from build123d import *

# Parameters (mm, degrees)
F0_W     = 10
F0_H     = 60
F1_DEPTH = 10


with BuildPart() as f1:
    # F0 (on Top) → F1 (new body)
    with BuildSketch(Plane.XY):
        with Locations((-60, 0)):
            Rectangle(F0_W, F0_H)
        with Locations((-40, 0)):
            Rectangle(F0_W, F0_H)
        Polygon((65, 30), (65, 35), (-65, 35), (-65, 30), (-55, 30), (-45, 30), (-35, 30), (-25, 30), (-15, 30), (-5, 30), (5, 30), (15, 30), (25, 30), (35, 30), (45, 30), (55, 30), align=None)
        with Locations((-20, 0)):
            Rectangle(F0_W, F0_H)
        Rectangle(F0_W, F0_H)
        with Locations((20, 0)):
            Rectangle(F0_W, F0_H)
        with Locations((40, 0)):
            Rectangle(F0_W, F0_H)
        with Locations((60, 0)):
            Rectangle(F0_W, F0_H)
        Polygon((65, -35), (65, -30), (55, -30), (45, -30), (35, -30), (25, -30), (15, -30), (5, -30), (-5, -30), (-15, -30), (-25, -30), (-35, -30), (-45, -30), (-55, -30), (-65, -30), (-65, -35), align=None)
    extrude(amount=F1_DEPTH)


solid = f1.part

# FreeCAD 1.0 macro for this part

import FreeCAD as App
import Part
import Sketcher

doc = App.newDocument("Part")
body = doc.addObject("PartDesign::Body", "Body")

# Sketch on XY plane
sketch1 = body.newObject("Sketcher::SketchObject", "Sketch")
sketch1.AttachmentSupport = (doc.getObject("XY_Plane"), [""])
sketch1.MapMode = "FlatFace"
sketch1.addGeometry([
    Part.LineSegment(App.Vector(65, 35, 0), App.Vector(-65, 35, 0)),  # 0
    Part.LineSegment(App.Vector(-65, 35, 0), App.Vector(-65, -35, 0)),  # 1
    Part.LineSegment(App.Vector(-65, -35, 0), App.Vector(65, -35, 0)),  # 2
    Part.LineSegment(App.Vector(65, -35, 0), App.Vector(65, 35, 0)),  # 3
    Part.LineSegment(App.Vector(-55, -30, 0), App.Vector(-55, 30, 0)),  # 4
    Part.LineSegment(App.Vector(-55, 30, 0), App.Vector(-45, 30, 0)),  # 5
    Part.LineSegment(App.Vector(-45, 30, 0), App.Vector(-45, -30, 0)),  # 6
    Part.LineSegment(App.Vector(-45, -30, 0), App.Vector(-55, -30, 0)),  # 7
    Part.LineSegment(App.Vector(-35, -30, 0), App.Vector(-35, 30, 0)),  # 8
    Part.LineSegment(App.Vector(-35, 30, 0), App.Vector(-25, 30, 0)),  # 9
    Part.LineSegment(App.Vector(-25, 30, 0), App.Vector(-25, -30, 0)),  # 10
    Part.LineSegment(App.Vector(-25, -30, 0), App.Vector(-35, -30, 0)),  # 11
    Part.LineSegment(App.Vector(-15, -30, 0), App.Vector(-15, 30, 0)),  # 12
    Part.LineSegment(App.Vector(-15, 30, 0), App.Vector(-5, 30, 0)),  # 13
    Part.LineSegment(App.Vector(-5, 30, 0), App.Vector(-5, -30, 0)),  # 14
    Part.LineSegment(App.Vector(-5, -30, 0), App.Vector(-15, -30, 0)),  # 15
    Part.LineSegment(App.Vector(5, -30, 0), App.Vector(5, 30, 0)),  # 16
    Part.LineSegment(App.Vector(5, 30, 0), App.Vector(15, 30, 0)),  # 17
    Part.LineSegment(App.Vector(15, 30, 0), App.Vector(15, -30, 0)),  # 18
    Part.LineSegment(App.Vector(15, -30, 0), App.Vector(5, -30, 0)),  # 19
    Part.LineSegment(App.Vector(25, -30, 0), App.Vector(25, 30, 0)),  # 20
    Part.LineSegment(App.Vector(25, 30, 0), App.Vector(35, 30, 0)),  # 21
    Part.LineSegment(App.Vector(35, 30, 0), App.Vector(35, -30, 0)),  # 22
    Part.LineSegment(App.Vector(35, -30, 0), App.Vector(25, -30, 0)),  # 23
    Part.LineSegment(App.Vector(45, -30, 0), App.Vector(45, 30, 0)),  # 24
    Part.LineSegment(App.Vector(45, 30, 0), App.Vector(55, 30, 0)),  # 25
    Part.LineSegment(App.Vector(55, 30, 0), App.Vector(55, -30, 0)),  # 26
    Part.LineSegment(App.Vector(55, -30, 0), App.Vector(45, -30, 0)),  # 27
], False)
sketch1.addConstraint([
    Sketcher.Constraint("Coincident", 0, 2, 1, 1),
    Sketcher.Constraint("Coincident", 1, 2, 2, 1),
    Sketcher.Constraint("Coincident", 2, 2, 3, 1),
    Sketcher.Constraint("Coincident", 3, 2, 0, 1),
    Sketcher.Constraint("Coincident", 4, 2, 5, 1),
    Sketcher.Constraint("Coincident", 5, 2, 6, 1),
    Sketcher.Constraint("Coincident", 6, 2, 7, 1),
    Sketcher.Constraint("Coincident", 7, 2, 4, 1),
    Sketcher.Constraint("Coincident", 8, 2, 9, 1),
    Sketcher.Constraint("Coincident", 9, 2, 10, 1),
    Sketcher.Constraint("Coincident", 10, 2, 11, 1),
    Sketcher.Constraint("Coincident", 11, 2, 8, 1),
    Sketcher.Constraint("Coincident", 12, 2, 13, 1),
    Sketcher.Constraint("Coincident", 13, 2, 14, 1),
    Sketcher.Constraint("Coincident", 14, 2, 15, 1),
    Sketcher.Constraint("Coincident", 15, 2, 12, 1),
    Sketcher.Constraint("Coincident", 16, 2, 17, 1),
    Sketcher.Constraint("Coincident", 17, 2, 18, 1),
    Sketcher.Constraint("Coincident", 18, 2, 19, 1),
    Sketcher.Constraint("Coincident", 19, 2, 16, 1),
    Sketcher.Constraint("Coincident", 20, 2, 21, 1),
    Sketcher.Constraint("Coincident", 21, 2, 22, 1),
    Sketcher.Constraint("Coincident", 22, 2, 23, 1),
    Sketcher.Constraint("Coincident", 23, 2, 20, 1),
    Sketcher.Constraint("Coincident", 24, 2, 25, 1),
    Sketcher.Constraint("Coincident", 25, 2, 26, 1),
    Sketcher.Constraint("Coincident", 26, 2, 27, 1),
    Sketcher.Constraint("Coincident", 27, 2, 24, 1),
    Sketcher.Constraint("Horizontal", 0),
    Sketcher.Constraint("Vertical", 1),
    Sketcher.Constraint("Horizontal", 2),
    Sketcher.Constraint("Vertical", 3),
    Sketcher.Constraint("Vertical", 4),
    Sketcher.Constraint("Horizontal", 5),
    Sketcher.Constraint("Vertical", 6),
    Sketcher.Constraint("Horizontal", 7),
    Sketcher.Constraint("Vertical", 8),
    Sketcher.Constraint("Horizontal", 9),
    Sketcher.Constraint("Vertical", 10),
    Sketcher.Constraint("Horizontal", 11),
    Sketcher.Constraint("Vertical", 12),
    Sketcher.Constraint("Horizontal", 13),
    Sketcher.Constraint("Vertical", 14),
    Sketcher.Constraint("Horizontal", 15),
    Sketcher.Constraint("Vertical", 16),
    Sketcher.Constraint("Horizontal", 17),
    Sketcher.Constraint("Vertical", 18),
    Sketcher.Constraint("Horizontal", 19),
    Sketcher.Constraint("Vertical", 20),
    Sketcher.Constraint("Horizontal", 21),
    Sketcher.Constraint("Vertical", 22),
    Sketcher.Constraint("Horizontal", 23),
    Sketcher.Constraint("Vertical", 24),
    Sketcher.Constraint("Horizontal", 25),
    Sketcher.Constraint("Vertical", 26),
    Sketcher.Constraint("Horizontal", 27),
    Sketcher.Constraint("Symmetric", 0, 2, 2, 2, -1, 1),
    Sketcher.Constraint("Symmetric", 14, 2, 16, 2, -1, 1),
    Sketcher.Constraint("Symmetric", 12, 2, 18, 2, -1, 1),
    Sketcher.Constraint("Symmetric", 10, 2, 20, 2, -1, 1),
    Sketcher.Constraint("Symmetric", 8, 2, 22, 2, -1, 1),
    Sketcher.Constraint("Symmetric", 6, 2, 24, 2, -1, 1),
    Sketcher.Constraint("Symmetric", 4, 2, 26, 2, -1, 1),
    Sketcher.Constraint("Horizontal", 5, 2, 8, 2),
    Sketcher.Constraint("Horizontal", 7, 2, 10, 2),
    Sketcher.Constraint("Horizontal", 9, 2, 12, 2),
    Sketcher.Constraint("Horizontal", 11, 2, 14, 2),
    Sketcher.Constraint("Horizontal", 13, 2, 16, 2),
    Sketcher.Constraint("Equal", 7, 9),
    Sketcher.Constraint("Equal", 11, 13),
    Sketcher.Constraint("DistanceX", 0, 2, 0, 1, 130.0),
    Sketcher.Constraint("DistanceX", 5, 1, 5, 2, 10.0),
    Sketcher.Constraint("DistanceY", 1, 2, 1, 1, 70.0),
    Sketcher.Constraint("DistanceY", 4, 1, 4, 2, 60.0),
    Sketcher.Constraint("DistanceX", 4, 2, -1, 1, 55.0),
    Sketcher.Constraint("DistanceX", 8, 2, -1, 1, 35.0),
    Sketcher.Constraint("DistanceX", 12, 2, -1, 1, 15.0),
])
pad1 = body.newObject("PartDesign::Pad", "Pad")
pad1.Profile = sketch1
pad1.Length = 10

doc.recompute()
